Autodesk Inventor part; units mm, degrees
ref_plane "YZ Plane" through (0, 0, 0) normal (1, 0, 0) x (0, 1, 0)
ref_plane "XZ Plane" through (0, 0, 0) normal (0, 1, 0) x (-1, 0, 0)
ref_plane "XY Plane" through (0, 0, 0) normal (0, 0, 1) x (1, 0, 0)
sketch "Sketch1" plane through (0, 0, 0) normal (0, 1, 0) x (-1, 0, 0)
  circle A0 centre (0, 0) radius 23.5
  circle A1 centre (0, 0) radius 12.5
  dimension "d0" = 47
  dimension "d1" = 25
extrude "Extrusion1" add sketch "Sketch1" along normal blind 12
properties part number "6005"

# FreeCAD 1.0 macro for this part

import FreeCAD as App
import Part
import Sketcher

V = App.Vector

doc = App.newDocument("Part")
params = doc.addObject("Spreadsheet::Sheet", "Params")
for row, (alias, value) in enumerate([
    ("sketch1_diameter", "47 mm"),
    ("sketch1_diameter2", "25 mm"),
    ("pad1_length", "12 mm"),
], start=1):
    params.set(f"A{row}", alias)
    params.set(f"B{row}", "=" + value)
    params.setAlias(f"B{row}", alias)

body = doc.addObject("PartDesign::Body", "Body")

# Sketch on XZ plane
sketch1 = body.newObject("Sketcher::SketchObject", "Sketch")
sketch1.AttachmentSupport = (doc.getObject("XZ_Plane"), [""])
sketch1.MapMode = "FlatFace"
sketch1.addGeometry([
    Part.Circle(V(0, 0, 0), V(0, 0, 1), 23.5),
    Part.Circle(V(0, 0, 0), V(0, 0, 1), 12.5),
], False)
sketch1.addConstraint([
    Sketcher.Constraint("Coincident", 0, 3, -1, 1),
    Sketcher.Constraint("Coincident", 1, 3, -1, 1),
    Sketcher.Constraint("Diameter", 0, 47.0),
    Sketcher.Constraint("Diameter", 1, 25.0),
])
sketch1.setExpression("Constraints[2]", "Params.sketch1_diameter")
sketch1.setExpression("Constraints[3]", "Params.sketch1_diameter2")
pad1 = body.newObject("PartDesign::Pad", "Pad")
pad1.Profile = sketch1
pad1.setExpression("Length", "Params.pad1_length")
pad1.Reversed = True

doc.recompute()
